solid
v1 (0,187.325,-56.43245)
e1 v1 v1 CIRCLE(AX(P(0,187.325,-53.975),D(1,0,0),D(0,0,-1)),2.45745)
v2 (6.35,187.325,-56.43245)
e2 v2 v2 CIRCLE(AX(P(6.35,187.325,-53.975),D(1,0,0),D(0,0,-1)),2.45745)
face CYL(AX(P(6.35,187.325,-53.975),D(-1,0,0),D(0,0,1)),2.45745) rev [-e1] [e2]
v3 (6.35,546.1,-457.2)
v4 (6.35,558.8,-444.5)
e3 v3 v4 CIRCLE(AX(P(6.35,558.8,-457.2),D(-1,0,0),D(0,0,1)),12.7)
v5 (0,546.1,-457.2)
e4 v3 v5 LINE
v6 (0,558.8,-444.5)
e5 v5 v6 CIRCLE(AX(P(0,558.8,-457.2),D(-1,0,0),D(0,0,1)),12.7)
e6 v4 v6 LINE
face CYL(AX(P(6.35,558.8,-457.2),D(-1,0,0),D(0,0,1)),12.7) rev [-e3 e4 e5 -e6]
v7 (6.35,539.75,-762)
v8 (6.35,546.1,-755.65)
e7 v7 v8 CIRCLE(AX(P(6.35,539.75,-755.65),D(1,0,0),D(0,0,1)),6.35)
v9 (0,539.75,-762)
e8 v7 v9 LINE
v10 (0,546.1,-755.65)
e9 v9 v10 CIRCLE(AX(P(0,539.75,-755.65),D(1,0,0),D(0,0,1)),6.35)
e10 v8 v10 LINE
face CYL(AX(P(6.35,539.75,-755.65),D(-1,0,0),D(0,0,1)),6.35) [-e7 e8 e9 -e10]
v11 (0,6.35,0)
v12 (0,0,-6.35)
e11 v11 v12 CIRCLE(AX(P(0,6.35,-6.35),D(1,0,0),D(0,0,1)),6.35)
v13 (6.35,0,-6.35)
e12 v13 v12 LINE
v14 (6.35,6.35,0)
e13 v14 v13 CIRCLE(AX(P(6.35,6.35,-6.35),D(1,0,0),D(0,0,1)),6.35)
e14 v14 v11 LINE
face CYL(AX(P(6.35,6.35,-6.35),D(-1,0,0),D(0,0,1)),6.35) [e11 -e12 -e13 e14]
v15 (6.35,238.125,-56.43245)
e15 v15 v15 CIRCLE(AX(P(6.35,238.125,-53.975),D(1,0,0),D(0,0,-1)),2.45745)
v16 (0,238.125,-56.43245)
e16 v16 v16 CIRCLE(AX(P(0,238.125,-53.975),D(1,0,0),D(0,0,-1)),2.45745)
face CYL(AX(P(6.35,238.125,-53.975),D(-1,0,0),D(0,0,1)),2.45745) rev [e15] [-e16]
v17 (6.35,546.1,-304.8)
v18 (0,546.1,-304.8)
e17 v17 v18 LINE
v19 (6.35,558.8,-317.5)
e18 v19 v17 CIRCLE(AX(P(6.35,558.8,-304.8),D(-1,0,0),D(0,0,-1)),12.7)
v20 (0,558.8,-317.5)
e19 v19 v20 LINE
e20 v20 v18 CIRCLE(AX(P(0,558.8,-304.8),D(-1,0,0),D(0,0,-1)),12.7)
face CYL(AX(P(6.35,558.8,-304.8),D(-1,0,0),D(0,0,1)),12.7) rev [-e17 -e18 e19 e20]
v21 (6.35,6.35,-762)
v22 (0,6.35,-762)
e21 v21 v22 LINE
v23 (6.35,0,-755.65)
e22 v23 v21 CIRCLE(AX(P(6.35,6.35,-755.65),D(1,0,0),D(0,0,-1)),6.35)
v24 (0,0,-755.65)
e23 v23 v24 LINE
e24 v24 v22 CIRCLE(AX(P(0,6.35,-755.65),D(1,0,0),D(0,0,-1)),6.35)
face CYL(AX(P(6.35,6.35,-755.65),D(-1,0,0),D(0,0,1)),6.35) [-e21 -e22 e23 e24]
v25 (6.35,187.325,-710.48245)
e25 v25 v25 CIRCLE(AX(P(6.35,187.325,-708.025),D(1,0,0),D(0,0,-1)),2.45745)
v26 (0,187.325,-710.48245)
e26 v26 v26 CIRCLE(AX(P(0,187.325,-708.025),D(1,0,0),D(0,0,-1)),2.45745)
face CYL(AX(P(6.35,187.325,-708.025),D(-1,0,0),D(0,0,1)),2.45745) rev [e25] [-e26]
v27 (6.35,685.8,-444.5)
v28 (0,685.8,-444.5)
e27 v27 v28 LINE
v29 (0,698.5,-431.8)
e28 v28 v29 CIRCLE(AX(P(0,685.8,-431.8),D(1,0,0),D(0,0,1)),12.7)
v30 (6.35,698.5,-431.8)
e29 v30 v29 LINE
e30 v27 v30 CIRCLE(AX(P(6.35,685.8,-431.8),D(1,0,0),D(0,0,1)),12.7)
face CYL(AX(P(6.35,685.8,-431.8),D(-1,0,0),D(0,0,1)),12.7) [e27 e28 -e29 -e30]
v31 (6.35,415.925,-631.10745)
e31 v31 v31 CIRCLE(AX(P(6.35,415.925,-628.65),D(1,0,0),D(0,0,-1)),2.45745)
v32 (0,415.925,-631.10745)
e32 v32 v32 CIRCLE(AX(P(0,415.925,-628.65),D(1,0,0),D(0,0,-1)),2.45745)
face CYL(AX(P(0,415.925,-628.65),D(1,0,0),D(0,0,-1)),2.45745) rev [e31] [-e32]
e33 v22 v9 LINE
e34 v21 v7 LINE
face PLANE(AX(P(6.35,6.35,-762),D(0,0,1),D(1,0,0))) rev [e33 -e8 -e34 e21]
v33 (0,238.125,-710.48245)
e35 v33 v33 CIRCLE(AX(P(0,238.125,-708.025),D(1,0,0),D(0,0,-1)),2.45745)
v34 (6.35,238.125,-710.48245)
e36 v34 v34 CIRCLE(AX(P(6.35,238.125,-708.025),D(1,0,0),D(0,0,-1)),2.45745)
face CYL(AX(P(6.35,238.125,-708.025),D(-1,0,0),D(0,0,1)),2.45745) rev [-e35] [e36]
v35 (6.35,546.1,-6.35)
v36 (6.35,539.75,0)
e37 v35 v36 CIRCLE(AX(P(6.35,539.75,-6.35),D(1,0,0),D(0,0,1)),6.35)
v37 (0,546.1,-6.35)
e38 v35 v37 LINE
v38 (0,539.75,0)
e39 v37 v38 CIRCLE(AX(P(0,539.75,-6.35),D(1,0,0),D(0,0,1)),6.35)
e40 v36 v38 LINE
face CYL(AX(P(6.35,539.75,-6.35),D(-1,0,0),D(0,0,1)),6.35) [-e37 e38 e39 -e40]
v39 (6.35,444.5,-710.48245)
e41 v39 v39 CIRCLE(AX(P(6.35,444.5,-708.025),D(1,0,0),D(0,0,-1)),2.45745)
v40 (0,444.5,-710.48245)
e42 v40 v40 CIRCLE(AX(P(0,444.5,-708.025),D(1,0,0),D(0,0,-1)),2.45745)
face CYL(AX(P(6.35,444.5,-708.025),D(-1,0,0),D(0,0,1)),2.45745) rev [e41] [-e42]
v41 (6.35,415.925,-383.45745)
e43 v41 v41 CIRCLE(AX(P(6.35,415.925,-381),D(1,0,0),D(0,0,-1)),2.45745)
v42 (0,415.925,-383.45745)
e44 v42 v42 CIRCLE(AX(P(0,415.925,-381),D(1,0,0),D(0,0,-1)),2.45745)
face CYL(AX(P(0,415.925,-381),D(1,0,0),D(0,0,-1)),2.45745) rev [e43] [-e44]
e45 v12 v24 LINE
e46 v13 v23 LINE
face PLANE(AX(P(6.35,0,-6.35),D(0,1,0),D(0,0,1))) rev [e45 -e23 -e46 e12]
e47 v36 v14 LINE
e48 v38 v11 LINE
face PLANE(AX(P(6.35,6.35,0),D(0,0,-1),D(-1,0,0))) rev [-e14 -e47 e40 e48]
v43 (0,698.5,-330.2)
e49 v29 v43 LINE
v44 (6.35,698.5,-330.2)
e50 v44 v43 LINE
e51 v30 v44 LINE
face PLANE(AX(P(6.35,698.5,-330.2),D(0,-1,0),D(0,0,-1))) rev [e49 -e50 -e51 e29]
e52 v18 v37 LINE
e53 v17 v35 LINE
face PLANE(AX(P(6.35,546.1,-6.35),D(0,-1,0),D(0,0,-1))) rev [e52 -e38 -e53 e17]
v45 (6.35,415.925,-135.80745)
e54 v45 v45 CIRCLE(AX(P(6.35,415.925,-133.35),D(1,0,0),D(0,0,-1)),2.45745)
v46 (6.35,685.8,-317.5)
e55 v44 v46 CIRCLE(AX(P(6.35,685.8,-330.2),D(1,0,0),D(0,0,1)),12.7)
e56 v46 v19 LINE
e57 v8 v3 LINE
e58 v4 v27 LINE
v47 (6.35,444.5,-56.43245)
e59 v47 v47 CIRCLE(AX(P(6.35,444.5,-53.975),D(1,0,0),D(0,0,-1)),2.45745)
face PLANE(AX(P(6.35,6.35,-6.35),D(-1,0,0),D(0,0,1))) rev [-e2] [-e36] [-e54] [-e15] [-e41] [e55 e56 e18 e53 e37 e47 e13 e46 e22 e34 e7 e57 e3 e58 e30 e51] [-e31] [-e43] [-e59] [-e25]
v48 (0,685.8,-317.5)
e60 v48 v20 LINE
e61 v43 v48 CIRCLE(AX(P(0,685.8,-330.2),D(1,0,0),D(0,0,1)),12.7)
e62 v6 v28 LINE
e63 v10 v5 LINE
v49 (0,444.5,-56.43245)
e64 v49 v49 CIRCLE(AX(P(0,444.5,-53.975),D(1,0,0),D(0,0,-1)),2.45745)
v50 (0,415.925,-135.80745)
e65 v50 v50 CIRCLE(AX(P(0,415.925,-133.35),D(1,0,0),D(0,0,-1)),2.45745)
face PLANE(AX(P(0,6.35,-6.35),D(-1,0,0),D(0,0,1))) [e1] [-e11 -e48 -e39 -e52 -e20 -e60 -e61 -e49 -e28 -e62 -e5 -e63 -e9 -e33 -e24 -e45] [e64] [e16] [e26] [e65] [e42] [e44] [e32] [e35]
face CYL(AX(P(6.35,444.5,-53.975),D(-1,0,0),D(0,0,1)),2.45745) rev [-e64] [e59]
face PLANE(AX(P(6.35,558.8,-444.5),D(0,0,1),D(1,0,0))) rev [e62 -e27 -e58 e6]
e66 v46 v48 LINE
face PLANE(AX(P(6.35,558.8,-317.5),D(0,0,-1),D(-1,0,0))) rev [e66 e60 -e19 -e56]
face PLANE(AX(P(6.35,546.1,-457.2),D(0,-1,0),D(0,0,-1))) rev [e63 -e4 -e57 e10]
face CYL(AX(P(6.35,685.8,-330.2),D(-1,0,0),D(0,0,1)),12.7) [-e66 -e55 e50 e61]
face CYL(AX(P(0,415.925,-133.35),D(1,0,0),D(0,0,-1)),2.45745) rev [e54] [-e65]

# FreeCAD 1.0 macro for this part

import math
import FreeCAD as App
import Part
import Sketcher
from FreeCAD import Vector
Q = App.Units.Quantity

doc = App.newDocument("Part")
body = doc.addObject("PartDesign::Body", "Body")

sketch1 = body.newObject("Sketcher::SketchObject", "Sketch")
sketch1.AttachmentSupport = (doc.getObject("YZ_Plane"), [""])
sketch1.MapMode = "FlatFace"
sketch1.addGeometry([
    Part.LineSegment(Vector(546.1, -755.6, 0), Vector(546.1, -457.2, 0)),
    Part.ArcOfCircle(Part.Circle(Vector(558.8, -457.2, 0), Vector(0, 0, 1), 12.7), math.radians(90), math.radians(180)),
    Part.LineSegment(Vector(558.8, -444.5, 0), Vector(685.8, -444.5, 0)),
    Part.ArcOfCircle(Part.Circle(Vector(685.8, -431.8, 0), Vector(0, 0, 1), 12.7), math.radians(-90), math.radians(0)),
    Part.LineSegment(Vector(698.5, -431.8, 0), Vector(698.5, -330.2, 0)),
    Part.ArcOfCircle(Part.Circle(Vector(685.8, -330.2, 0), Vector(0, 0, 1), 12.7), math.radians(0), math.radians(90)),
    Part.LineSegment(Vector(685.8, -317.5, 0), Vector(558.8, -317.5, 0)),
    Part.ArcOfCircle(Part.Circle(Vector(558.8, -304.8, 0), Vector(0, 0, 1), 12.7), math.radians(180), math.radians(270)),
    Part.LineSegment(Vector(546.1, -304.8, 0), Vector(546.1, -6.3, 0)),
    Part.ArcOfCircle(Part.Circle(Vector(539.8, -6.3, 0), Vector(0, 0, 1), 6.3), math.radians(0), math.radians(90)),
    Part.LineSegment(Vector(539.8, 0, 0), Vector(6.3, 0, 0)),
    Part.ArcOfCircle(Part.Circle(Vector(6.3, -6.3, 0), Vector(0, 0, 1), 6.3), math.radians(90), math.radians(180)),
    Part.LineSegment(Vector(0, -6.3, 0), Vector(0, -755.6, 0)),
    Part.ArcOfCircle(Part.Circle(Vector(6.3, -755.7, 0), Vector(0, 0, 1), 6.3), math.radians(180), math.radians(270)),
    Part.LineSegment(Vector(6.3, -762, 0), Vector(539.8, -762, 0)),
    Part.ArcOfCircle(Part.Circle(Vector(539.8, -755.7, 0), Vector(0, 0, 1), 6.3), math.radians(-90), math.radians(0)),
    Part.Circle(Vector(187.3, -708, 0), Vector(0, 0, 1), 2.5),
    Part.Circle(Vector(238.1, -708, 0), Vector(0, 0, 1), 2.5),
    Part.Circle(Vector(187.3, -54, 0), Vector(0, 0, 1), 2.5),
    Part.Circle(Vector(238.1, -54, 0), Vector(0, 0, 1), 2.5),
    Part.Circle(Vector(444.5, -708, 0), Vector(0, 0, 1), 2.5),
    Part.Circle(Vector(444.5, -54, 0), Vector(0, 0, 1), 2.5),
], False)
sketch1.addConstraint([
    Sketcher.Constraint("Tangent", 0, 2, 1, 2),
    Sketcher.Constraint("Tangent", 1, 1, 2, 1),
    Sketcher.Constraint("Tangent", 2, 2, 3, 1),
    Sketcher.Constraint("Tangent", 3, 2, 4, 1),
    Sketcher.Constraint("Tangent", 4, 2, 5, 1),
    Sketcher.Constraint("Tangent", 5, 2, 6, 1),
    Sketcher.Constraint("Tangent", 6, 2, 7, 2),
    Sketcher.Constraint("Tangent", 7, 1, 8, 1),
    Sketcher.Constraint("Tangent", 8, 2, 9, 1),
    Sketcher.Constraint("Tangent", 9, 2, 10, 1),
    Sketcher.Constraint("Tangent", 10, 2, 11, 1),
    Sketcher.Constraint("Tangent", 11, 2, 12, 1),
    Sketcher.Constraint("Tangent", 12, 2, 13, 1),
    Sketcher.Constraint("Tangent", 13, 2, 14, 1),
    Sketcher.Constraint("Tangent", 14, 2, 15, 1),
    Sketcher.Constraint("Tangent", 15, 2, 0, 1),
    Sketcher.Constraint("Vertical", 0),
    Sketcher.Constraint("Horizontal", 2),
    Sketcher.Constraint("Vertical", 4),
    Sketcher.Constraint("Horizontal", 6),
    Sketcher.Constraint("Vertical", 8),
    Sketcher.Constraint("Horizontal", 10),
    Sketcher.Constraint("Vertical", 12),
    Sketcher.Constraint("Horizontal", 14),
    Sketcher.Constraint("Equal", 1, 3),
    Sketcher.Constraint("Equal", 3, 5),
    Sketcher.Constraint("Equal", 5, 7),
    Sketcher.Constraint("Equal", 9, 11),
    Sketcher.Constraint("Equal", 11, 13),
    Sketcher.Constraint("Equal", 13, 15),
    Sketcher.Constraint("Equal", 16, 17),
    Sketcher.Constraint("Equal", 17, 18),
    Sketcher.Constraint("Equal", 18, 19),
    Sketcher.Constraint("Equal", 19, 20),
    Sketcher.Constraint("Equal", 20, 21),
    Sketcher.Constraint("PointOnObject", 9, 2, -1),
    Sketcher.Constraint("PointOnObject", 11, 2, -2),
    Sketcher.Constraint("Horizontal", 16, 3, 17, 3),
    Sketcher.Constraint("Horizontal", 18, 3, 19, 3),
    Sketcher.Constraint("Horizontal", 17, 3, 20, 3),
    Sketcher.Constraint("Horizontal", 19, 3, 21, 3),
    Sketcher.Constraint("Vertical", 1, 3, 7, 3),
    Sketcher.Constraint("Vertical", 16, 3, 18, 3),
    Sketcher.Constraint("Vertical", 17, 3, 19, 3),
    Sketcher.Constraint("Vertical", 20, 3, 21, 3),
    Sketcher.Constraint("Equal", 0, 8),
    Sketcher.Constraint("Radius", 1, Q("0.5 in")),
    Sketcher.Constraint("DistanceX", 2, 1, 2, 2, Q("5 in")),
    Sketcher.Constraint("DistanceX", 10, 2, 10, 1, Q("21 in")),
    Sketcher.Constraint("DistanceY", 4, 1, 4, 2, Q("4 in")),
    Sketcher.Constraint("Radius", 9, Q("0.25 in")),
    Sketcher.Constraint("DistanceY", 12, 2, 12, 1, Q("29.5 in")),
    Sketcher.Constraint("DistanceX", 16, 3, 17, 3, Q("2 in")),
    Sketcher.Constraint("DistanceX", 20, 3, 0, 2, Q("4 in")),
    Sketcher.Constraint("Diameter", 16, Q("0.1935 in")),
    Sketcher.Constraint("DistanceX", -1, 1, 16, 3, Q("7.375 in")),
    Sketcher.Constraint("DistanceY", 16, 3, -1, 1, Q("27.875 in")),
    Sketcher.Constraint("DistanceY", 18, 3, -1, 1, Q("2.125 in")),
])
pad1 = body.newObject("PartDesign::Pad", "Pad")
pad1.Profile = sketch1
pad1.Length = Q("0.25 in")

sketch2 = body.newObject("Sketcher::SketchObject", "Sketch001")
sketch2.AttachmentSupport = (doc.getObject("YZ_Plane"), [""])
sketch2.MapMode = "FlatFace"
sketch2.AttachmentOffset = App.Placement(Vector(0, 0, 0.25 * 25.4), App.Rotation())
sketch2.addGeometry([
    Part.Circle(Vector(415.9, -133.3, 0), Vector(0, 0, 1), 2.5),
    Part.Circle(Vector(415.9, -381, 0), Vector(0, 0, 1), 2.5),
    Part.Circle(Vector(415.9, -628.6, 0), Vector(0, 0, 1), 2.5),
], False)
sketch2.addConstraint([
    Sketcher.Constraint("Equal", 0, 1),
    Sketcher.Constraint("Equal", 1, 2),
    Sketcher.Constraint("Vertical", 0, 3, 1, 3),
    Sketcher.Constraint("Vertical", 1, 3, 2, 3),
    Sketcher.Constraint("DistanceY", 1, 3, -1, 1, Q("15 in")),
    Sketcher.Constraint("Diameter", 0, Q("0.1935 in")),
    Sketcher.Constraint("DistanceY", 2, 3, 0, 3, Q("19.5 in")),
    Sketcher.Constraint("DistanceY", 0, 3, -1, 1, Q("5.25 in")),
    Sketcher.Constraint("DistanceX", -1, 1, 0, 3, Q("16.375 in")),
])
pocket1 = body.newObject("PartDesign::Pocket", "Pocket")
pocket1.Profile = sketch2
pocket1.Type = "ThroughAll"

doc.recompute()
